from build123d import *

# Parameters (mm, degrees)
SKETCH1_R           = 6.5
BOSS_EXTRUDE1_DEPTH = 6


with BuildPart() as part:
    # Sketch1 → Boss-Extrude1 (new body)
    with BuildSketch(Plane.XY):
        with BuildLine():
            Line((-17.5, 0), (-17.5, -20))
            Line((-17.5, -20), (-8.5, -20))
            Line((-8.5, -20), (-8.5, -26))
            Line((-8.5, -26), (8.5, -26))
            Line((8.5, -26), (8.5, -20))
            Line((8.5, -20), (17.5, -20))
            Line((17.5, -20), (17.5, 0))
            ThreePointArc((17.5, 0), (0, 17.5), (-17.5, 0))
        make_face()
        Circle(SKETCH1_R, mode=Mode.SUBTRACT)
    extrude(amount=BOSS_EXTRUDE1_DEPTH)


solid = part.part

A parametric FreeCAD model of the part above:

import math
import FreeCAD as App
import Part
import Sketcher

V = App.Vector

doc = App.newDocument("Part")
params = doc.addObject("Spreadsheet::Sheet", "Params")
for row, (alias, value) in enumerate([
    ("sketch1_diameter", "13 mm"),
    ("sketch1_radius", "17.5 mm"),
    ("sketch1_width", "9 mm"),
    ("sketch1_height", "20 mm"),
    ("sketch1_height2", "6 mm"),
    ("pad1_length", "6 mm"),
], start=1):
    params.set(f"A{row}", alias)
    params.set(f"B{row}", "=" + value)
    params.setAlias(f"B{row}", alias)

body = doc.addObject("PartDesign::Body", "Body")

# Sketch on XY plane
sketch1 = doc.addObject("Sketcher::SketchObject", "Sketch")
body.addObject(sketch1)
sketch1.AttachmentSupport = (doc.XY_Plane, [""])
sketch1.MapMode = "FlatFace"
sketch1.addGeometry([
    Part.LineSegment(V(-18, 0, 0), V(-18, -20, 0)),  # 0
    Part.LineSegment(V(-18, -20, 0), V(-8, -20, 0)),  # 1
    Part.LineSegment(V(-8, -20, 0), V(-8, -26, 0)),  # 2
    Part.LineSegment(V(-8, -26, 0), V(8, -26, 0)),  # 3
    Part.LineSegment(V(8, -26, 0), V(8, -20, 0)),  # 4
    Part.LineSegment(V(8, -20, 0), V(18, -20, 0)),  # 5
    Part.LineSegment(V(18, -20, 0), V(18, 0, 0)),  # 6
    Part.ArcOfCircle(Part.Circle(V(0, 0, 0), V(0, 0, 1), 18), math.radians(0), math.radians(180)),  # 7
    Part.Circle(V(0, 0, 0), V(0, 0, 1), 6),  # 8
], False)
sketch1.addConstraint([
    Sketcher.Constraint("Coincident", 0, 2, 1, 1),
    Sketcher.Constraint("Coincident", 1, 2, 2, 1),
    Sketcher.Constraint("Coincident", 2, 2, 3, 1),
    Sketcher.Constraint("Coincident", 3, 2, 4, 1),
    Sketcher.Constraint("Coincident", 4, 2, 5, 1),
    Sketcher.Constraint("Coincident", 5, 2, 6, 1),
    Sketcher.Constraint("Tangent", 6, 2, 7, 1),
    Sketcher.Constraint("Tangent", 7, 2, 0, 1),
    Sketcher.Constraint("Vertical", 0),
    Sketcher.Constraint("Horizontal", 1),
    Sketcher.Constraint("Vertical", 2),
    Sketcher.Constraint("Horizontal", 3),
    Sketcher.Constraint("Vertical", 4),
    Sketcher.Constraint("Horizontal", 5),
    Sketcher.Constraint("Vertical", 6),
    Sketcher.Constraint("Coincident", 7, 3, -1, 1),
    Sketcher.Constraint("Coincident", 8, 3, -1, 1),
    Sketcher.Constraint("Symmetric", 1, 2, 4, 2, -2),
    Sketcher.Constraint("Diameter", 8, 13.0),
    Sketcher.Constraint("Radius", 7, 17.5),
    Sketcher.Constraint("DistanceX", 1, 1, 1, 2, 9.0),
    Sketcher.Constraint("DistanceY", 0, 2, 0, 1, 20.0),
    Sketcher.Constraint("DistanceY", 2, 2, 2, 1, 6.0),
])
sketch1.setExpression("Constraints[18]", "Params.sketch1_diameter")
sketch1.setExpression("Constraints[19]", "Params.sketch1_radius")
sketch1.setExpression("Constraints[20]", "Params.sketch1_width")
sketch1.setExpression("Constraints[21]", "Params.sketch1_height")
sketch1.setExpression("Constraints[22]", "Params.sketch1_height2")
pad1 = doc.addObject("PartDesign::Pad", "Pad")
body.addObject(pad1)
pad1.Profile = sketch1
pad1.setExpression("Length", "Params.pad1_length")

doc.recompute()
